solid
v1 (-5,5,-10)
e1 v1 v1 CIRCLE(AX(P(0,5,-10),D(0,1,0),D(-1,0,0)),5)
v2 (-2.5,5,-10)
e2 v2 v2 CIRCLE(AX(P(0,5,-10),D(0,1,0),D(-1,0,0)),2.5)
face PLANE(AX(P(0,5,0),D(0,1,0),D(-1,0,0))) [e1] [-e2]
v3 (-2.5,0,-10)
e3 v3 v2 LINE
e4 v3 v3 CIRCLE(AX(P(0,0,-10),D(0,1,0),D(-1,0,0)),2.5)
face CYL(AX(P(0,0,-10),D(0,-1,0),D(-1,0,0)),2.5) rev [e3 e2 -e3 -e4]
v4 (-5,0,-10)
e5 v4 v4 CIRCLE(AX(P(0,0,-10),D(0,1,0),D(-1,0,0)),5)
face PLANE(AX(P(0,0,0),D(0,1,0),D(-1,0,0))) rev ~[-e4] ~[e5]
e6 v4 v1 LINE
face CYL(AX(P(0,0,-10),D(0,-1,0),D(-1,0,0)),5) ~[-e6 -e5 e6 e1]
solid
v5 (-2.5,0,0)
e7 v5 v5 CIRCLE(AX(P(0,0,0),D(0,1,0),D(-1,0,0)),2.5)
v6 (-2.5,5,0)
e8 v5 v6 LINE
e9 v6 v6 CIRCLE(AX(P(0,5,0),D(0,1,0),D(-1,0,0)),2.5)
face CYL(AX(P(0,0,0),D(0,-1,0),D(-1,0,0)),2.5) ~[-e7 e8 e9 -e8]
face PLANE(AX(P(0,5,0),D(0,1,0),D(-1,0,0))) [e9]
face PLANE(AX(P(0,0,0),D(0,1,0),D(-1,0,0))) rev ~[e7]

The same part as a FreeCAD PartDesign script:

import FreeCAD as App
import Part
import Sketcher
Q = App.Units.Quantity

doc = App.newDocument("Part")
params = doc.addObject("Spreadsheet::Sheet", "Params")
for row, (alias, value) in enumerate([
    ("sketch1_diameter", "5 mm"),
    ("sketch1_diameter2", "10 mm"),
    ("pad1_length", "5 mm"),
], start=1):
    params.set(f"A{row}", alias)
    params.set(f"B{row}", "=" + value)
    params.setAlias(f"B{row}", alias)

body = doc.addObject("PartDesign::Body", "Body")
body.AllowCompound = True

# Sketch on XZ plane
sketch1 = body.newObject("Sketcher::SketchObject", "Sketch")
sketch1.AttachmentSupport = (doc.getObject("XZ_Plane"), [""])
sketch1.MapMode = "FlatFace"
sketch1.addGeometry([
    Part.Circle(App.Vector(0, 0, 0), App.Vector(0, 0, 1), 2.5),
    Part.Circle(App.Vector(0, -10, 0), App.Vector(0, 0, 1), 5),
    Part.Circle(App.Vector(0, -10, 0), App.Vector(0, 0, 1), 2.5),
], False)
sketch1.addConstraint([
    Sketcher.Constraint("Coincident", 0, 3, -1, 1),
    Sketcher.Constraint("Coincident", 2, 3, 1, 3),
    Sketcher.Constraint("Equal", 0, 2),
    Sketcher.Constraint("PointOnObject", 1, 3, -2),
    Sketcher.Constraint("Diameter", 0, Q("5 mm")),
    Sketcher.Constraint("Diameter", 1, Q("10 mm")),
    Sketcher.Constraint("DistanceY", 1, 3, -1, 1, Q("10 mm")),
])
sketch1.setExpression("Constraints[4]", "Params.sketch1_diameter")
sketch1.setExpression("Constraints[5]", "Params.sketch1_diameter2")
pad1 = body.newObject("PartDesign::Pad", "Pad")
pad1.Profile = sketch1
pad1.setExpression("Length", "Params.pad1_length")
pad1.Reversed = True

doc.recompute()
